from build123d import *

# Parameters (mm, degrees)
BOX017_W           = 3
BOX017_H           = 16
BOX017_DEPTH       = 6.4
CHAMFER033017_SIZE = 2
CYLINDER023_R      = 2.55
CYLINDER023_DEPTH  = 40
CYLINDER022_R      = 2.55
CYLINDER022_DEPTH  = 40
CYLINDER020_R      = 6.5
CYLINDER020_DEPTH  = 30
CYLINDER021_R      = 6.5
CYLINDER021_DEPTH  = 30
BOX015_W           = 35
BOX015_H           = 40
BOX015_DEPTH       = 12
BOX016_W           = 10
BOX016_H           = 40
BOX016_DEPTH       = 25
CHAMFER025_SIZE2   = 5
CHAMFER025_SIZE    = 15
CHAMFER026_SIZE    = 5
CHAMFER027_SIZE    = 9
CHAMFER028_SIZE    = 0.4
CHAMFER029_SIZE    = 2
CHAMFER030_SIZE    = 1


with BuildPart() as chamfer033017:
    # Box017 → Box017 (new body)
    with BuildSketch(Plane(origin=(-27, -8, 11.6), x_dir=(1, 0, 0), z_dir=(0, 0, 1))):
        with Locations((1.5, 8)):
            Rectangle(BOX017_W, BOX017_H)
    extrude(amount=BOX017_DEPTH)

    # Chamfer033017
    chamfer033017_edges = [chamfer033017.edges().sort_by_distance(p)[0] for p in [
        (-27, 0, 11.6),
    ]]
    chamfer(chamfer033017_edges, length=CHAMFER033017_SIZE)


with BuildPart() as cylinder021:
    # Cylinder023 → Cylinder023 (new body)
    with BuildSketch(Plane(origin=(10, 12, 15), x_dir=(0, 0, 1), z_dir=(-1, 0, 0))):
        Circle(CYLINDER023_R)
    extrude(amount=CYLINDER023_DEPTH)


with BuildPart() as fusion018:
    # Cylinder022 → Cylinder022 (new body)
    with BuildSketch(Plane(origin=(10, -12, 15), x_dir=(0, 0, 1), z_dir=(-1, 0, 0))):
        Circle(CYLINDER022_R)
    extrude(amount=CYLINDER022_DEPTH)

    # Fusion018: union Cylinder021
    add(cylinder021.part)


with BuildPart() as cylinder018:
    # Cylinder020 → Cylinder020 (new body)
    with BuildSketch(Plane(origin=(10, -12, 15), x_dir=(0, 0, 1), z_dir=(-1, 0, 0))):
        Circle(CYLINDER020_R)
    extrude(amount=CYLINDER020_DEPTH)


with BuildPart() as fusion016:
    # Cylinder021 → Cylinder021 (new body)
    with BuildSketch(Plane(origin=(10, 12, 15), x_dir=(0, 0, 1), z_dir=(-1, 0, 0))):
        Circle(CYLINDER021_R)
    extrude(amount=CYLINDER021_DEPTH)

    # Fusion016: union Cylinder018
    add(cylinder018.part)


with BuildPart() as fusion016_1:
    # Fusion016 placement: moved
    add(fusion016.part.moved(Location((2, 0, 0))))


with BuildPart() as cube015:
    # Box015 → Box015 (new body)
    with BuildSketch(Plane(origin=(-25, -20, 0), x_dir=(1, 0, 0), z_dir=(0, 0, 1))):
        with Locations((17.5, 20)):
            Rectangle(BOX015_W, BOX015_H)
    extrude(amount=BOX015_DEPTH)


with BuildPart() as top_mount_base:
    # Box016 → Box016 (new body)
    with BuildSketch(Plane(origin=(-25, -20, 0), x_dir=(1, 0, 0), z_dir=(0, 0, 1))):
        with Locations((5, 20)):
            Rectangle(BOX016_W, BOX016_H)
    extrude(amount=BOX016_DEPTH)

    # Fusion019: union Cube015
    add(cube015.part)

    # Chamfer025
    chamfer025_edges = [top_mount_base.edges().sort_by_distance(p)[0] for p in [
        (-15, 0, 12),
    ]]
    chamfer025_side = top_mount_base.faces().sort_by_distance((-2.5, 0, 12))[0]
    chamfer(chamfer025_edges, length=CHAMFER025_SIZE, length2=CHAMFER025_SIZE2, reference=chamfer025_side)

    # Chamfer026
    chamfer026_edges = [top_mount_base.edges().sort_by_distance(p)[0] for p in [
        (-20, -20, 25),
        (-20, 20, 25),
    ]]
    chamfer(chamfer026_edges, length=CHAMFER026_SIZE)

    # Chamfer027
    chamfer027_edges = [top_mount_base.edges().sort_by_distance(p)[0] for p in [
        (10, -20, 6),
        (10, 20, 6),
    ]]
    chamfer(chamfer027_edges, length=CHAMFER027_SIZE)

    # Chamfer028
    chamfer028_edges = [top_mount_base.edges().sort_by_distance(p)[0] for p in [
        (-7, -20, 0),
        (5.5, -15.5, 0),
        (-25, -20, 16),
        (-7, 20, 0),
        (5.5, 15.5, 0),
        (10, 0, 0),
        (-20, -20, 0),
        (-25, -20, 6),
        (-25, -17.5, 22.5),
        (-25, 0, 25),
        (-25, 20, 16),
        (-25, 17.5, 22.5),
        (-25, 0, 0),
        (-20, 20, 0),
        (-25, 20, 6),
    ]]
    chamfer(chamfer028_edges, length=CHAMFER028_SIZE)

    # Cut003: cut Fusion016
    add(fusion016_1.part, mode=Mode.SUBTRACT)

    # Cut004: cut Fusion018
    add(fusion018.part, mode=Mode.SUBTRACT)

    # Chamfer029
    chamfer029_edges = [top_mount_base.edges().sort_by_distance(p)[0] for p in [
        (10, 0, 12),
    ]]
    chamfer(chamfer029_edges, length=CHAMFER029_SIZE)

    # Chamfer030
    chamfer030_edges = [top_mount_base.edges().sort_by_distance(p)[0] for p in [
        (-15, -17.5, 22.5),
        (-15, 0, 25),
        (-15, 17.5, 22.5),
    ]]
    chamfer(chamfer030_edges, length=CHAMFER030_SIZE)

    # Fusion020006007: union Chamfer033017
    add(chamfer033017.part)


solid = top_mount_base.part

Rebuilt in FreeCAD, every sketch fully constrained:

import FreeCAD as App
import Part
import Sketcher


def edges_at(feature, points):
    """Names of the edges that pass closest to the given points."""
    edges = feature.Shape.Edges
    near = lambda p: min(range(len(edges)), key=lambda i: edges[i].distToShape(Part.Vertex(*p))[0])
    return sorted({f"Edge{near(p) + 1}" for p in points})


def add_polygon(sketch, points):
    """Adds a closed chain of lines whose ends are joined by coincident constraints."""
    first, n = sketch.GeometryCount, len(points)
    for a, b in zip(points, points[1:] + points[:1]):
        sketch.addGeometry(Part.LineSegment(App.Vector(*a, 0), App.Vector(*b, 0)), False)
    for i in range(n):
        sketch.addConstraint(Sketcher.Constraint("Coincident", first + i, 2, first + (i + 1) % n, 1))

doc = App.newDocument("Part")
body = doc.addObject("PartDesign::Body", "Body")

# Sketch on XY plane
sketch1 = body.newObject("Sketcher::SketchObject", "Sketch")
sketch1.AttachmentSupport = (doc.getObject("XY_Plane"), [""])
sketch1.MapMode = "FlatFace"
sketch1.AttachmentOffset = App.Placement(App.Vector(0, 0, 11.6), App.Rotation())
add_polygon(sketch1, [(-27, 8), (-27, -8), (-24, -8), (-24, 8)])  # lines 0-3
sketch1.addConstraint([
    Sketcher.Constraint("Vertical", 0),
    Sketcher.Constraint("Horizontal", 1),
    Sketcher.Constraint("Vertical", 2),
    Sketcher.Constraint("Horizontal", 3),
    Sketcher.Constraint("DistanceX", 1, 1, 1, 2, 3.0),
    Sketcher.Constraint("DistanceY", 0, 2, 0, 1, 16.0),
    Sketcher.Constraint("DistanceX", 0, 2, -1, 1, 27.0),
    Sketcher.Constraint("DistanceY", 0, 2, -1, 1, 8.0),
])
pad1 = body.newObject("PartDesign::Pad", "Pad")
pad1.Profile = sketch1
pad1.Length = 6.4
doc.recompute()

chamfer = body.newObject("PartDesign::Chamfer", "Chamfer")
chamfer.Base = (pad1, edges_at(pad1, [(-27, 0, 11.6)]))
chamfer.Size = 2
body2 = doc.addObject("PartDesign::Body", "Body001")

# Sketch on YZ plane
sketch2 = body2.newObject("Sketcher::SketchObject", "Sketch001")
sketch2.AttachmentSupport = (doc.getObject("YZ_Plane001"), [""])
sketch2.MapMode = "FlatFace"
sketch2.AttachmentOffset = App.Placement(App.Vector(0, 0, 10), App.Rotation())
sketch2.addGeometry(Part.Circle(App.Vector(12, 15, 0), App.Vector(0, 0, 1), 2.5), False)
sketch2.addConstraint([
    Sketcher.Constraint("Diameter", 0, 5.1),
    Sketcher.Constraint("DistanceX", -1, 1, 0, 3, 12.0),
    Sketcher.Constraint("DistanceY", -1, 1, 0, 3, 15.0),
])
pad2 = body2.newObject("PartDesign::Pad", "Pad001")
pad2.Profile = sketch2
pad2.Length = 40
pad2.Reversed = True
body3 = doc.addObject("PartDesign::Body", "Body002")
body3.AllowCompound = True

# Sketch on YZ plane
sketch3 = body3.newObject("Sketcher::SketchObject", "Sketch002")
sketch3.AttachmentSupport = (doc.getObject("YZ_Plane002"), [""])
sketch3.MapMode = "FlatFace"
sketch3.AttachmentOffset = App.Placement(App.Vector(0, 0, 10), App.Rotation())
sketch3.addGeometry(Part.Circle(App.Vector(-12, 15, 0), App.Vector(0, 0, 1), 2.5), False)
sketch3.addConstraint([
    Sketcher.Constraint("Diameter", 0, 5.1),
    Sketcher.Constraint("DistanceX", 0, 3, -1, 1, 12.0),
    Sketcher.Constraint("DistanceY", -1, 1, 0, 3, 15.0),
])
pad3 = body3.newObject("PartDesign::Pad", "Pad002")
pad3.Profile = sketch3
pad3.Length = 40
pad3.Reversed = True
doc.recompute()

boolean = body3.newObject("PartDesign::Boolean", "Boolean")
boolean.Type = "Fuse"
boolean.addObjects([body2])
body4 = doc.addObject("PartDesign::Body", "Body003")

# Sketch on YZ plane
sketch4 = body4.newObject("Sketcher::SketchObject", "Sketch003")
sketch4.AttachmentSupport = (doc.getObject("YZ_Plane003"), [""])
sketch4.MapMode = "FlatFace"
sketch4.AttachmentOffset = App.Placement(App.Vector(0, 0, 10), App.Rotation())
sketch4.addGeometry(Part.Circle(App.Vector(-12, 15, 0), App.Vector(0, 0, 1), 6), False)
sketch4.addConstraint([
    Sketcher.Constraint("Diameter", 0, 13.0),
    Sketcher.Constraint("DistanceX", 0, 3, -1, 1, 12.0),
    Sketcher.Constraint("DistanceY", -1, 1, 0, 3, 15.0),
])
pad4 = body4.newObject("PartDesign::Pad", "Pad003")
pad4.Profile = sketch4
pad4.Length = 30
pad4.Reversed = True
body5 = doc.addObject("PartDesign::Body", "Body004")
body5.AllowCompound = True

# Sketch on YZ plane
sketch5 = body5.newObject("Sketcher::SketchObject", "Sketch004")
sketch5.AttachmentSupport = (doc.getObject("YZ_Plane004"), [""])
sketch5.MapMode = "FlatFace"
sketch5.AttachmentOffset = App.Placement(App.Vector(0, 0, 10), App.Rotation())
sketch5.addGeometry(Part.Circle(App.Vector(12, 15, 0), App.Vector(0, 0, 1), 6), False)
sketch5.addConstraint([
    Sketcher.Constraint("Diameter", 0, 13.0),
    Sketcher.Constraint("DistanceX", -1, 1, 0, 3, 12.0),
    Sketcher.Constraint("DistanceY", -1, 1, 0, 3, 15.0),
])
pad5 = body5.newObject("PartDesign::Pad", "Pad004")
pad5.Profile = sketch5
pad5.Length = 30
pad5.Reversed = True
doc.recompute()

boolean2 = body5.newObject("PartDesign::Boolean", "Boolean001")
boolean2.Type = "Fuse"
boolean2.addObjects([body4])
body6 = doc.addObject("PartDesign::Body", "Body005")
body6.AllowCompound = True
doc.recompute()

body5.Placement = App.Placement(App.Vector(2, 0, 0), App.Rotation(App.Vector(0, 0, 1), 0))
boolean3 = body6.newObject("PartDesign::Boolean", "Boolean002")
boolean3.Type = "Fuse"
boolean3.addObjects([body5])
body7 = doc.addObject("PartDesign::Body", "Body006")

# Sketch on XY plane
sketch6 = body7.newObject("Sketcher::SketchObject", "Sketch005")
sketch6.AttachmentSupport = (doc.getObject("XY_Plane006"), [""])
sketch6.MapMode = "FlatFace"
add_polygon(sketch6, [(-25, 20), (-25, -20), (10, -20), (10, 20)])  # lines 0-3
sketch6.addConstraint([
    Sketcher.Constraint("Vertical", 0),
    Sketcher.Constraint("Horizontal", 1),
    Sketcher.Constraint("Vertical", 2),
    Sketcher.Constraint("Horizontal", 3),
    Sketcher.Constraint("DistanceX", 1, 1, 1, 2, 35.0),
    Sketcher.Constraint("DistanceY", 0, 2, 0, 1, 40.0),
    Sketcher.Constraint("DistanceX", 0, 2, -1, 1, 25.0),
    Sketcher.Constraint("DistanceY", 0, 2, -1, 1, 20.0),
])
pad6 = body7.newObject("PartDesign::Pad", "Pad005")
pad6.Profile = sketch6
pad6.Length = 12
body8 = doc.addObject("PartDesign::Body", "Body007")

# Sketch on XY plane
sketch7 = body8.newObject("Sketcher::SketchObject", "Sketch006")
sketch7.AttachmentSupport = (doc.getObject("XY_Plane007"), [""])
sketch7.MapMode = "FlatFace"
add_polygon(sketch7, [(-25, 20), (-25, -20), (-15, -20), (-15, 20)])  # lines 0-3
sketch7.addConstraint([
    Sketcher.Constraint("Vertical", 0),
    Sketcher.Constraint("Horizontal", 1),
    Sketcher.Constraint("Vertical", 2),
    Sketcher.Constraint("Horizontal", 3),
    Sketcher.Constraint("DistanceX", 1, 1, 1, 2, 10.0),
    Sketcher.Constraint("DistanceY", 0, 2, 0, 1, 40.0),
    Sketcher.Constraint("DistanceX", 0, 2, -1, 1, 25.0),
    Sketcher.Constraint("DistanceY", 0, 2, -1, 1, 20.0),
])
pad7 = body8.newObject("PartDesign::Pad", "Pad006")
pad7.Profile = sketch7
pad7.Length = 25
doc.recompute()

boolean4 = body8.newObject("PartDesign::Boolean", "Boolean003")
boolean4.Type = "Fuse"
boolean4.addObjects([body7])
doc.recompute()

chamfer2 = body8.newObject("PartDesign::Chamfer", "Chamfer001")
chamfer2.Base = (boolean4, edges_at(boolean4, [(-15, 0, 12)]))
chamfer2.ChamferType = "Two distances"
chamfer2.Size = 15
chamfer2.Size2 = 5
doc.recompute()

chamfer3 = body8.newObject("PartDesign::Chamfer", "Chamfer002")
chamfer3.Base = (chamfer2, edges_at(chamfer2, [(-20, -20, 25), (-20, 20, 25)]))
chamfer3.Size = 5
doc.recompute()

chamfer4 = body8.newObject("PartDesign::Chamfer", "Chamfer003")
chamfer4.Base = (chamfer3, edges_at(chamfer3, [(10, -20, 6), (10, 20, 6)]))
chamfer4.Size = 9
doc.recompute()

chamfer5 = body8.newObject("PartDesign::Chamfer", "Chamfer004")
chamfer5.Base = (chamfer4, edges_at(chamfer4, [
    (-12, -20, 0),
    (5.5, -15.5, 0),
    (-25, -20, 10),
    (-12, 20, 0),
    (5.5, 15.5, 0),
    (10, 0, 0),
    (-12, -20, 0),
    (-25, -20, 10),
    (-25, -17.5, 22.5),
    (-25, 0, 25),
    (-25, 20, 10),
    (-25, 17.5, 22.5),
    (-25, 0, 0),
    (-12, 20, 0),
    (-25, 20, 10),
]))
chamfer5.Size = 0.4
doc.recompute()

boolean5 = body8.newObject("PartDesign::Boolean", "Boolean004")
boolean5.Type = "Cut"
boolean5.addObjects([body6])
doc.recompute()

boolean6 = body8.newObject("PartDesign::Boolean", "Boolean005")
boolean6.Type = "Cut"
boolean6.addObjects([body3])
doc.recompute()

chamfer6 = body8.newObject("PartDesign::Chamfer", "Chamfer005")
chamfer6.Base = (boolean6, edges_at(boolean6, [(10, 0, 12)]))
chamfer6.Size = 2
doc.recompute()

chamfer7 = body8.newObject("PartDesign::Chamfer", "Chamfer006")
chamfer7.Base = (chamfer6, edges_at(chamfer6, [(-15, -17.5, 22.5), (-15, 0, 25), (-15, 17.5, 22.5)]))
chamfer7.Size = 1
doc.recompute()

boolean7 = body8.newObject("PartDesign::Boolean", "Boolean006")
boolean7.Type = "Fuse"
boolean7.addObjects([body])

doc.recompute()
